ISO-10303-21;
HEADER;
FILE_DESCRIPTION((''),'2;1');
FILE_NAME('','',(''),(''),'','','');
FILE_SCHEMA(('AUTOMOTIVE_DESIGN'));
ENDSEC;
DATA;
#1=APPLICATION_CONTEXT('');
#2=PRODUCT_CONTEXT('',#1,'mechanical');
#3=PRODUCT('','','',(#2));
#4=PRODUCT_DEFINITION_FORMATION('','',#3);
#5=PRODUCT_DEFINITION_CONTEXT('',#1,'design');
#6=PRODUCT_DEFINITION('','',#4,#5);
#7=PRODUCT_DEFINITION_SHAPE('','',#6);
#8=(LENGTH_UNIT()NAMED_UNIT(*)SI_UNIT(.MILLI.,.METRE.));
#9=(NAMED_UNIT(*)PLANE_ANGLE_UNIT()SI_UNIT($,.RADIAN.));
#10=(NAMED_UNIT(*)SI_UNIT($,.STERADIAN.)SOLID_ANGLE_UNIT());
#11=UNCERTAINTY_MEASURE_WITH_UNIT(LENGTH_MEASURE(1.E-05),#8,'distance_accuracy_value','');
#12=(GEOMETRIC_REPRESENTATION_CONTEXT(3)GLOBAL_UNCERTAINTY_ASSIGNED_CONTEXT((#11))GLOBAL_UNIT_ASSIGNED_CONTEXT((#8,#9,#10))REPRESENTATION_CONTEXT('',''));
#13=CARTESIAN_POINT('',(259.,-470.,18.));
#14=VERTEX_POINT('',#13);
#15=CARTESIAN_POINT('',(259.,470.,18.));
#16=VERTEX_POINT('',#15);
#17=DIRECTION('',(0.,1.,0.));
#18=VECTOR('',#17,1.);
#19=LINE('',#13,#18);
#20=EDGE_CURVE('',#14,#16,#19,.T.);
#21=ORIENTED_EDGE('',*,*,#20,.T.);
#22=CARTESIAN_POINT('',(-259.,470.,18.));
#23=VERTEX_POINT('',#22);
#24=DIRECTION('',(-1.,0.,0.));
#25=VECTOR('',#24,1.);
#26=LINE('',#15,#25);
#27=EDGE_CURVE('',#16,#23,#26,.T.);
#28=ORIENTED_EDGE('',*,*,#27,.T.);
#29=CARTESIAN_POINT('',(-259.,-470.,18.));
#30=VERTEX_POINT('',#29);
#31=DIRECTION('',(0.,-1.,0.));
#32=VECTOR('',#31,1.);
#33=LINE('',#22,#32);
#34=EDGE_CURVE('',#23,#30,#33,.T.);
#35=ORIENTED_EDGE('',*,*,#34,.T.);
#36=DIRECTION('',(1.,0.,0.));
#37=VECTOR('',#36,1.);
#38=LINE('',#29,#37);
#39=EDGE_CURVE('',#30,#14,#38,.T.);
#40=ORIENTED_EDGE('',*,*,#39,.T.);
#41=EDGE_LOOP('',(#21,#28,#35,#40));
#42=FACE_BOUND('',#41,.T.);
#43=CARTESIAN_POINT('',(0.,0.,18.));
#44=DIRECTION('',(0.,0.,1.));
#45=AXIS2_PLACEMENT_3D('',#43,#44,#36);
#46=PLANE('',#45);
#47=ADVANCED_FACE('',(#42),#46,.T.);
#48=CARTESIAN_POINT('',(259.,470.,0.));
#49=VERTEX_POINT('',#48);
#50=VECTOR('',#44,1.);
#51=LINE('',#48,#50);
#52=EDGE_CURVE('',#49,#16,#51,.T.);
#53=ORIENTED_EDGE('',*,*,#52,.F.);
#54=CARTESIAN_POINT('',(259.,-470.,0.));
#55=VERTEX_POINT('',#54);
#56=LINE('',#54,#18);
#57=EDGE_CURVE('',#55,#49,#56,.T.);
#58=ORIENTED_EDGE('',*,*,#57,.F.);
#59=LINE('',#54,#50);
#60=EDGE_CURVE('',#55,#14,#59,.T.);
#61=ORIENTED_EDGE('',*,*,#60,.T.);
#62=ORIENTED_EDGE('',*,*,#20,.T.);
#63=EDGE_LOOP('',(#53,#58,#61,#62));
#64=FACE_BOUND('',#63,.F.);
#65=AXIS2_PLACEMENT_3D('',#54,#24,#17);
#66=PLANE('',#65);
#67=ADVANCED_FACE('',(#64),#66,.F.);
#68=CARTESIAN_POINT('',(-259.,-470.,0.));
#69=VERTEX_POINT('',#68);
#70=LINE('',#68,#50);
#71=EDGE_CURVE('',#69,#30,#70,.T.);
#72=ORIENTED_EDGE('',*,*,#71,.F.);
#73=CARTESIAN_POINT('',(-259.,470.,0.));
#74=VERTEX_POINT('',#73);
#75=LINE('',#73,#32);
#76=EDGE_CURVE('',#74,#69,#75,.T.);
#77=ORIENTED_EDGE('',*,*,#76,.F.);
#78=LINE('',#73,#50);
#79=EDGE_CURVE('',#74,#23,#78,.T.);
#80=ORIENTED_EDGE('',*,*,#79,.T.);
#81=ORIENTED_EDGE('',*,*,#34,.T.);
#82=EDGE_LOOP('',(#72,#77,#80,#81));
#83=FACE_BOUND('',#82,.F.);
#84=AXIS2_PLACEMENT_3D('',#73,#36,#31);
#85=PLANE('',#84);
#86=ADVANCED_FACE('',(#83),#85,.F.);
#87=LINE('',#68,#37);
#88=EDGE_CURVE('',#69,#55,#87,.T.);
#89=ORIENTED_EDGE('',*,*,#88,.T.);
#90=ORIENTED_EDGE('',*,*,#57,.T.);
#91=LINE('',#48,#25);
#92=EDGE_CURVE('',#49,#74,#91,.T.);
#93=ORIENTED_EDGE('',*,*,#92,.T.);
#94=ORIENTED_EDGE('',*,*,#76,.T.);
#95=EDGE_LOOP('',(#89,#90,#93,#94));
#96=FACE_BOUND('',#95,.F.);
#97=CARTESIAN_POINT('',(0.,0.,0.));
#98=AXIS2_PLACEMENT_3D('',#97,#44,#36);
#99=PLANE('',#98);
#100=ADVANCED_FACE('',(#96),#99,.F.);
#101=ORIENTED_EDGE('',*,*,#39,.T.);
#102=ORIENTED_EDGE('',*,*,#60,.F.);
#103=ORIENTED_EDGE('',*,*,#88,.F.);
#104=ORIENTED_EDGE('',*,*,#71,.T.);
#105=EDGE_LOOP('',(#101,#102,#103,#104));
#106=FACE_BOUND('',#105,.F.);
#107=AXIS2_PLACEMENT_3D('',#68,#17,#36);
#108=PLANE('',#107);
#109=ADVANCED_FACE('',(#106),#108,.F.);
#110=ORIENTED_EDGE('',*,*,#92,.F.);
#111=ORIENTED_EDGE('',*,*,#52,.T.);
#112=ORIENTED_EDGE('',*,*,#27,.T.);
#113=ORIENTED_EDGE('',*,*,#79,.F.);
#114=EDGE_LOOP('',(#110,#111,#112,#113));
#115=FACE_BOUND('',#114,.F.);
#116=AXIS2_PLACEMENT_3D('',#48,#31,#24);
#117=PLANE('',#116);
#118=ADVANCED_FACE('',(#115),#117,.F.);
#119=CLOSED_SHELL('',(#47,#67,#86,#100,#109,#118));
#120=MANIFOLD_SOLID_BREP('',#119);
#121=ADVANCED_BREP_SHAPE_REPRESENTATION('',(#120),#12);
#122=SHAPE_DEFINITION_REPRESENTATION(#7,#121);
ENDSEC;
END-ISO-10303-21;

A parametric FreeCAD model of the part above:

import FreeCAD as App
import Part
import Sketcher
from FreeCAD import Vector

doc = App.newDocument("Part")
body = doc.addObject("PartDesign::Body", "Body")

# Sketch on XY plane
sketch1 = doc.addObject("Sketcher::SketchObject", "Sketch")
body.addObject(sketch1)
sketch1.AttachmentSupport = (doc.XY_Plane, [""])
sketch1.MapMode = "FlatFace"
sketch1.addGeometry([
    Part.LineSegment(Vector(-259, 470, 0), Vector(-259, -470, 0)),
    Part.LineSegment(Vector(-259, -470, 0), Vector(259, -470, 0)),
    Part.LineSegment(Vector(259, -470, 0), Vector(259, 470, 0)),
    Part.LineSegment(Vector(259, 470, 0), Vector(-259, 470, 0)),
], False)
sketch1.addConstraint([
    Sketcher.Constraint("Coincident", 0, 2, 1, 1),
    Sketcher.Constraint("Coincident", 1, 2, 2, 1),
    Sketcher.Constraint("Coincident", 2, 2, 3, 1),
    Sketcher.Constraint("Coincident", 3, 2, 0, 1),
    Sketcher.Constraint("Vertical", 0),
    Sketcher.Constraint("Horizontal", 1),
    Sketcher.Constraint("Vertical", 2),
    Sketcher.Constraint("Horizontal", 3),
    Sketcher.Constraint("Symmetric", 0, 2, 2, 2, -1, 1),
    Sketcher.Constraint("DistanceX", 1, 1, 1, 2, 518.0),
    Sketcher.Constraint("DistanceY", 0, 2, 0, 1, 940.0),
])
pad1 = doc.addObject("PartDesign::Pad", "Pad")
body.addObject(pad1)
pad1.Profile = sketch1
pad1.Length = 18

doc.recompute()
